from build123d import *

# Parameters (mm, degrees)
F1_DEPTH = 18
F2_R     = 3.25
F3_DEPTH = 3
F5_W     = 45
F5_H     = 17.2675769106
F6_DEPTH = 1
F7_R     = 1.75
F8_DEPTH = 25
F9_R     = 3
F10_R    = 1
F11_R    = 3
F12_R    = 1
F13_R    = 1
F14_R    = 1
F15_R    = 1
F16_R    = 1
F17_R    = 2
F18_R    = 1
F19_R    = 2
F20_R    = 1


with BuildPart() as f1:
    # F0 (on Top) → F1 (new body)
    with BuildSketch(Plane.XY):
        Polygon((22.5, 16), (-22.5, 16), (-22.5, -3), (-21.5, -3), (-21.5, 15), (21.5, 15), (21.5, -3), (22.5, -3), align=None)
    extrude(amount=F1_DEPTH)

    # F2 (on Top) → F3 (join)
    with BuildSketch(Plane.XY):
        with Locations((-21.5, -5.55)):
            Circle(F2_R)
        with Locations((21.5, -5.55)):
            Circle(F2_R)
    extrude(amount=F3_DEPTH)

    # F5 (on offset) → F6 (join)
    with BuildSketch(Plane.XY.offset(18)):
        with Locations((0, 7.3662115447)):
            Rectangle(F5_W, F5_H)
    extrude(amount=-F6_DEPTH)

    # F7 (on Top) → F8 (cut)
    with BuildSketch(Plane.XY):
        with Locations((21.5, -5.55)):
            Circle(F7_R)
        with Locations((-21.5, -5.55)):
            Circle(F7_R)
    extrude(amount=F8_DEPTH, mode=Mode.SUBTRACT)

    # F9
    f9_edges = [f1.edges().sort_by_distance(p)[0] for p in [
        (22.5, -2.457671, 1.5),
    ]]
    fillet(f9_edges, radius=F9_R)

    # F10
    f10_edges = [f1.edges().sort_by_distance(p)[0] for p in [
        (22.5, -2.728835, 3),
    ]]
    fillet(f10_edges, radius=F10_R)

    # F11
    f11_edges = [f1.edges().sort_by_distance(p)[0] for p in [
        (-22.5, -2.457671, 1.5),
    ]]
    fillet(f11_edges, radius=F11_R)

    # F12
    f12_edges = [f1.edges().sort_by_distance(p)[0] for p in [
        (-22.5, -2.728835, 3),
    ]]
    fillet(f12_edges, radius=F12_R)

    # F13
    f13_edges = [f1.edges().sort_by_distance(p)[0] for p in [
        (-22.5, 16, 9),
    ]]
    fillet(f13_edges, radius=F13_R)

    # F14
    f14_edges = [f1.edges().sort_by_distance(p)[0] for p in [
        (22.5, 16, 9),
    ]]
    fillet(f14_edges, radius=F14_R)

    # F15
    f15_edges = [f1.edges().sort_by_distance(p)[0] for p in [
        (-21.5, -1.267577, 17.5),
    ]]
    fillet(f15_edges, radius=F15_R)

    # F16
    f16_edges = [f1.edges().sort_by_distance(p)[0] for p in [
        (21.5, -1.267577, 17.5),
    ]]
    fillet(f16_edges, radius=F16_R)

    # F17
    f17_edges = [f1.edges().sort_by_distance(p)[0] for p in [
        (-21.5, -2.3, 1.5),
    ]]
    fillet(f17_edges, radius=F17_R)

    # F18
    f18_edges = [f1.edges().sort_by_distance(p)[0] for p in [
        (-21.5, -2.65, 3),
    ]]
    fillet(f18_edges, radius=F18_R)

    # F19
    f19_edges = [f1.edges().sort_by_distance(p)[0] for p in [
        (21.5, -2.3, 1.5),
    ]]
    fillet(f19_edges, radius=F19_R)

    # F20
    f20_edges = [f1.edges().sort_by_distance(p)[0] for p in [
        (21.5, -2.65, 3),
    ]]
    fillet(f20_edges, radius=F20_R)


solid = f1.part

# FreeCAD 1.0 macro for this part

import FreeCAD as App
import Part
import Sketcher


def edges_at(feature, points):
    """Names of the edges that pass closest to the given points."""
    edges = feature.Shape.Edges
    near = lambda p: min(range(len(edges)), key=lambda i: edges[i].distToShape(Part.Vertex(*p))[0])
    return sorted({f"Edge{near(p) + 1}" for p in points})

doc = App.newDocument("Part")
params = doc.addObject("Spreadsheet::Sheet", "Params")
for row, (alias, value) in enumerate([
    ("sketch1_width", "45 mm"),
    ("sketch1_width2", "1 mm"),
    ("sketch1_height", "19 mm"),
    ("sketch1_height2", "18 mm"),
    ("pad1_length", "18 mm"),
    ("sketch2_diameter", "6.5 mm"),
    ("pad2_length", "3 mm"),
    ("sketch3_width", "45 mm"),
    ("pad3_length", "1 mm"),
    ("sketch4_diameter", "3.5 mm"),
    ("pocket1_length", "25 mm"),
    ("fillet_radius", "3 mm"),
    ("fillet2_radius", "1 mm"),
    ("fillet3_radius", "3 mm"),
    ("fillet4_radius", "1 mm"),
    ("fillet5_radius", "1 mm"),
    ("fillet6_radius", "1 mm"),
    ("fillet7_radius", "1 mm"),
    ("fillet8_radius", "1 mm"),
    ("fillet9_radius", "2 mm"),
    ("fillet10_radius", "1 mm"),
    ("fillet11_radius", "2 mm"),
    ("fillet12_radius", "1 mm"),
], start=1):
    params.set(f"A{row}", alias)
    params.set(f"B{row}", "=" + value)
    params.setAlias(f"B{row}", alias)

body = doc.addObject("PartDesign::Body", "Body")

# Sketch on XY plane
sketch1 = body.newObject("Sketcher::SketchObject", "Sketch")
sketch1.AttachmentSupport = (doc.getObject("XY_Plane"), [""])
sketch1.MapMode = "FlatFace"
sketch1.addGeometry([
    Part.LineSegment(App.Vector(22.5, 16, 0), App.Vector(-22.5, 16, 0)),  # 0
    Part.LineSegment(App.Vector(-22.5, 16, 0), App.Vector(-22.5, -3, 0)),  # 1
    Part.LineSegment(App.Vector(-22.5, -3, 0), App.Vector(-21.5, -3, 0)),  # 2
    Part.LineSegment(App.Vector(-21.5, -3, 0), App.Vector(-21.5, 15, 0)),  # 3
    Part.LineSegment(App.Vector(-21.5, 15, 0), App.Vector(21.5, 15, 0)),  # 4
    Part.LineSegment(App.Vector(21.5, 15, 0), App.Vector(21.5, -3, 0)),  # 5
    Part.LineSegment(App.Vector(21.5, -3, 0), App.Vector(22.5, -3, 0)),  # 6
    Part.LineSegment(App.Vector(22.5, -3, 0), App.Vector(22.5, 16, 0)),  # 7
], False)
sketch1.addConstraint([
    Sketcher.Constraint("Coincident", 0, 2, 1, 1),
    Sketcher.Constraint("Coincident", 1, 2, 2, 1),
    Sketcher.Constraint("Coincident", 2, 2, 3, 1),
    Sketcher.Constraint("Coincident", 3, 2, 4, 1),
    Sketcher.Constraint("Coincident", 4, 2, 5, 1),
    Sketcher.Constraint("Coincident", 5, 2, 6, 1),
    Sketcher.Constraint("Coincident", 6, 2, 7, 1),
    Sketcher.Constraint("Coincident", 7, 2, 0, 1),
    Sketcher.Constraint("Horizontal", 0),
    Sketcher.Constraint("Vertical", 1),
    Sketcher.Constraint("Horizontal", 2),
    Sketcher.Constraint("Vertical", 3),
    Sketcher.Constraint("Horizontal", 4),
    Sketcher.Constraint("Vertical", 5),
    Sketcher.Constraint("Horizontal", 6),
    Sketcher.Constraint("Vertical", 7),
    Sketcher.Constraint("Symmetric", 2, 2, 5, 2, -2),
    Sketcher.Constraint("Equal", 2, 6),
    Sketcher.Constraint("DistanceX", 0, 2, 0, 1, 45.0),
    Sketcher.Constraint("DistanceX", 2, 1, 2, 2, 1.0),
    Sketcher.Constraint("DistanceY", 1, 2, 1, 1, 19.0),
    Sketcher.Constraint("DistanceY", 3, 1, 3, 2, 18.0),
    Sketcher.Constraint("DistanceY", -1, 1, 0, 2, 16.0),
])
sketch1.setExpression("Constraints[18]", "Params.sketch1_width")
sketch1.setExpression("Constraints[19]", "Params.sketch1_width2")
sketch1.setExpression("Constraints[20]", "Params.sketch1_height")
sketch1.setExpression("Constraints[21]", "Params.sketch1_height2")
pad1 = body.newObject("PartDesign::Pad", "Pad")
pad1.Profile = sketch1
pad1.setExpression("Length", "Params.pad1_length")

# Sketch on XY plane
sketch2 = body.newObject("Sketcher::SketchObject", "Sketch001")
sketch2.AttachmentSupport = (doc.getObject("XY_Plane"), [""])
sketch2.MapMode = "FlatFace"
sketch2.addGeometry([
    Part.Circle(App.Vector(-21.5, -5.55, 0), App.Vector(0, 0, 1), 3.25),
    Part.Circle(App.Vector(21.5, -5.55, 0), App.Vector(0, 0, 1), 3.25),
], False)
sketch2.addConstraint([
    Sketcher.Constraint("Equal", 0, 1),
    Sketcher.Constraint("Symmetric", 0, 3, 1, 3, -2),
    Sketcher.Constraint("Diameter", 0, 6.5),
    Sketcher.Constraint("DistanceX", 0, 3, 1, 3, 43.0),
    Sketcher.Constraint("DistanceY", 0, 3, -1, 1, 5.55),
])
sketch2.setExpression("Constraints[2]", "Params.sketch2_diameter")
pad2 = body.newObject("PartDesign::Pad", "Pad001")
pad2.Profile = sketch2
pad2.setExpression("Length", "Params.pad2_length")

# Sketch on XY plane
sketch3 = body.newObject("Sketcher::SketchObject", "Sketch002")
sketch3.AttachmentSupport = (doc.getObject("XY_Plane"), [""])
sketch3.MapMode = "FlatFace"
sketch3.AttachmentOffset = App.Placement(App.Vector(0, 0, 18), App.Rotation())
sketch3.addGeometry([
    Part.LineSegment(App.Vector(-22.5, 16, 0), App.Vector(-22.5, -1.267577, 0)),
    Part.LineSegment(App.Vector(-22.5, -1.267577, 0), App.Vector(22.5, -1.267577, 0)),
    Part.LineSegment(App.Vector(22.5, -1.267577, 0), App.Vector(22.5, 16, 0)),
    Part.LineSegment(App.Vector(22.5, 16, 0), App.Vector(-22.5, 16, 0)),
], False)
sketch3.addConstraint([
    Sketcher.Constraint("Coincident", 0, 2, 1, 1),
    Sketcher.Constraint("Coincident", 1, 2, 2, 1),
    Sketcher.Constraint("Coincident", 2, 2, 3, 1),
    Sketcher.Constraint("Coincident", 3, 2, 0, 1),
    Sketcher.Constraint("Vertical", 0),
    Sketcher.Constraint("Horizontal", 1),
    Sketcher.Constraint("Vertical", 2),
    Sketcher.Constraint("Horizontal", 3),
    Sketcher.Constraint("DistanceX", 1, 1, 1, 2, 45.0),
    Sketcher.Constraint("DistanceY", -1, 1, 2, 2, 16.0),
    Sketcher.Constraint("DistanceX", 0, 2, -1, 1, 22.5),
    Sketcher.Constraint("DistanceY", 0, 2, 0, 1, 17.267577),
])
sketch3.setExpression("Constraints[8]", "Params.sketch3_width")
pad3 = body.newObject("PartDesign::Pad", "Pad002")
pad3.Profile = sketch3
pad3.setExpression("Length", "Params.pad3_length")
pad3.Reversed = True

# Sketch on XY plane
sketch4 = body.newObject("Sketcher::SketchObject", "Sketch003")
sketch4.AttachmentSupport = (doc.getObject("XY_Plane"), [""])
sketch4.MapMode = "FlatFace"
sketch4.addGeometry([
    Part.Circle(App.Vector(21.5, -5.55, 0), App.Vector(0, 0, 1), 1.75),
    Part.Circle(App.Vector(-21.5, -5.55, 0), App.Vector(0, 0, 1), 1.75),
], False)
sketch4.addConstraint([
    Sketcher.Constraint("Equal", 0, 1),
    Sketcher.Constraint("Symmetric", 0, 3, 1, 3, -2),
    Sketcher.Constraint("Diameter", 0, 3.5),
    Sketcher.Constraint("DistanceX", 1, 3, 0, 3, 43.0),
    Sketcher.Constraint("DistanceY", 0, 3, -1, 1, 5.55),
])
sketch4.setExpression("Constraints[2]", "Params.sketch4_diameter")
pocket1 = body.newObject("PartDesign::Pocket", "Pocket")
pocket1.Profile = sketch4
pocket1.setExpression("Length", "Params.pocket1_length")
pocket1.Reversed = True
doc.recompute()

fillet = body.newObject("PartDesign::Fillet", "Fillet")
fillet.Base = (pocket1, edges_at(pocket1, [(22.5, -2.458, 1.5)]))
fillet.setExpression("Radius", "Params.fillet_radius")
doc.recompute()

fillet2 = body.newObject("PartDesign::Fillet", "Fillet001")
fillet2.Base = (fillet, edges_at(fillet, [(22.5, -1.874, 3)]))
fillet2.setExpression("Radius", "Params.fillet2_radius")
doc.recompute()

fillet3 = body.newObject("PartDesign::Fillet", "Fillet002")
fillet3.Base = (fillet2, edges_at(fillet2, [(-22.5, -2.458, 1.5)]))
fillet3.setExpression("Radius", "Params.fillet3_radius")
doc.recompute()

fillet4 = body.newObject("PartDesign::Fillet", "Fillet003")
fillet4.Base = (fillet3, edges_at(fillet3, [(-22.5, -1.874, 3)]))
fillet4.setExpression("Radius", "Params.fillet4_radius")
doc.recompute()

fillet5 = body.newObject("PartDesign::Fillet", "Fillet004")
fillet5.Base = (fillet4, edges_at(fillet4, [(-22.5, 16, 9)]))
fillet5.setExpression("Radius", "Params.fillet5_radius")
doc.recompute()

fillet6 = body.newObject("PartDesign::Fillet", "Fillet005")
fillet6.Base = (fillet5, edges_at(fillet5, [(22.5, 16, 9)]))
fillet6.setExpression("Radius", "Params.fillet6_radius")
doc.recompute()

fillet7 = body.newObject("PartDesign::Fillet", "Fillet006")
fillet7.Base = (fillet6, edges_at(fillet6, [(-21.5, -1.268, 17.5)]))
fillet7.setExpression("Radius", "Params.fillet7_radius")
doc.recompute()

fillet8 = body.newObject("PartDesign::Fillet", "Fillet007")
fillet8.Base = (fillet7, edges_at(fillet7, [(21.5, -1.268, 17.5)]))
fillet8.setExpression("Radius", "Params.fillet8_radius")
doc.recompute()

fillet9 = body.newObject("PartDesign::Fillet", "Fillet008")
fillet9.Base = (fillet8, edges_at(fillet8, [(-21.5, -2.3, 1.5)]))
fillet9.setExpression("Radius", "Params.fillet9_radius")
doc.recompute()

fillet10 = body.newObject("PartDesign::Fillet", "Fillet009")
fillet10.Base = (fillet9, edges_at(fillet9, [(-21.5, -1.848, 3)]))
fillet10.setExpression("Radius", "Params.fillet10_radius")
doc.recompute()

fillet11 = body.newObject("PartDesign::Fillet", "Fillet010")
fillet11.Base = (fillet10, edges_at(fillet10, [(21.5, -2.3, 1.5)]))
fillet11.setExpression("Radius", "Params.fillet11_radius")
doc.recompute()

fillet12 = body.newObject("PartDesign::Fillet", "Fillet011")
fillet12.Base = (fillet11, edges_at(fillet11, [(21.5, -1.848, 3)]))
fillet12.setExpression("Radius", "Params.fillet12_radius")

doc.recompute()
